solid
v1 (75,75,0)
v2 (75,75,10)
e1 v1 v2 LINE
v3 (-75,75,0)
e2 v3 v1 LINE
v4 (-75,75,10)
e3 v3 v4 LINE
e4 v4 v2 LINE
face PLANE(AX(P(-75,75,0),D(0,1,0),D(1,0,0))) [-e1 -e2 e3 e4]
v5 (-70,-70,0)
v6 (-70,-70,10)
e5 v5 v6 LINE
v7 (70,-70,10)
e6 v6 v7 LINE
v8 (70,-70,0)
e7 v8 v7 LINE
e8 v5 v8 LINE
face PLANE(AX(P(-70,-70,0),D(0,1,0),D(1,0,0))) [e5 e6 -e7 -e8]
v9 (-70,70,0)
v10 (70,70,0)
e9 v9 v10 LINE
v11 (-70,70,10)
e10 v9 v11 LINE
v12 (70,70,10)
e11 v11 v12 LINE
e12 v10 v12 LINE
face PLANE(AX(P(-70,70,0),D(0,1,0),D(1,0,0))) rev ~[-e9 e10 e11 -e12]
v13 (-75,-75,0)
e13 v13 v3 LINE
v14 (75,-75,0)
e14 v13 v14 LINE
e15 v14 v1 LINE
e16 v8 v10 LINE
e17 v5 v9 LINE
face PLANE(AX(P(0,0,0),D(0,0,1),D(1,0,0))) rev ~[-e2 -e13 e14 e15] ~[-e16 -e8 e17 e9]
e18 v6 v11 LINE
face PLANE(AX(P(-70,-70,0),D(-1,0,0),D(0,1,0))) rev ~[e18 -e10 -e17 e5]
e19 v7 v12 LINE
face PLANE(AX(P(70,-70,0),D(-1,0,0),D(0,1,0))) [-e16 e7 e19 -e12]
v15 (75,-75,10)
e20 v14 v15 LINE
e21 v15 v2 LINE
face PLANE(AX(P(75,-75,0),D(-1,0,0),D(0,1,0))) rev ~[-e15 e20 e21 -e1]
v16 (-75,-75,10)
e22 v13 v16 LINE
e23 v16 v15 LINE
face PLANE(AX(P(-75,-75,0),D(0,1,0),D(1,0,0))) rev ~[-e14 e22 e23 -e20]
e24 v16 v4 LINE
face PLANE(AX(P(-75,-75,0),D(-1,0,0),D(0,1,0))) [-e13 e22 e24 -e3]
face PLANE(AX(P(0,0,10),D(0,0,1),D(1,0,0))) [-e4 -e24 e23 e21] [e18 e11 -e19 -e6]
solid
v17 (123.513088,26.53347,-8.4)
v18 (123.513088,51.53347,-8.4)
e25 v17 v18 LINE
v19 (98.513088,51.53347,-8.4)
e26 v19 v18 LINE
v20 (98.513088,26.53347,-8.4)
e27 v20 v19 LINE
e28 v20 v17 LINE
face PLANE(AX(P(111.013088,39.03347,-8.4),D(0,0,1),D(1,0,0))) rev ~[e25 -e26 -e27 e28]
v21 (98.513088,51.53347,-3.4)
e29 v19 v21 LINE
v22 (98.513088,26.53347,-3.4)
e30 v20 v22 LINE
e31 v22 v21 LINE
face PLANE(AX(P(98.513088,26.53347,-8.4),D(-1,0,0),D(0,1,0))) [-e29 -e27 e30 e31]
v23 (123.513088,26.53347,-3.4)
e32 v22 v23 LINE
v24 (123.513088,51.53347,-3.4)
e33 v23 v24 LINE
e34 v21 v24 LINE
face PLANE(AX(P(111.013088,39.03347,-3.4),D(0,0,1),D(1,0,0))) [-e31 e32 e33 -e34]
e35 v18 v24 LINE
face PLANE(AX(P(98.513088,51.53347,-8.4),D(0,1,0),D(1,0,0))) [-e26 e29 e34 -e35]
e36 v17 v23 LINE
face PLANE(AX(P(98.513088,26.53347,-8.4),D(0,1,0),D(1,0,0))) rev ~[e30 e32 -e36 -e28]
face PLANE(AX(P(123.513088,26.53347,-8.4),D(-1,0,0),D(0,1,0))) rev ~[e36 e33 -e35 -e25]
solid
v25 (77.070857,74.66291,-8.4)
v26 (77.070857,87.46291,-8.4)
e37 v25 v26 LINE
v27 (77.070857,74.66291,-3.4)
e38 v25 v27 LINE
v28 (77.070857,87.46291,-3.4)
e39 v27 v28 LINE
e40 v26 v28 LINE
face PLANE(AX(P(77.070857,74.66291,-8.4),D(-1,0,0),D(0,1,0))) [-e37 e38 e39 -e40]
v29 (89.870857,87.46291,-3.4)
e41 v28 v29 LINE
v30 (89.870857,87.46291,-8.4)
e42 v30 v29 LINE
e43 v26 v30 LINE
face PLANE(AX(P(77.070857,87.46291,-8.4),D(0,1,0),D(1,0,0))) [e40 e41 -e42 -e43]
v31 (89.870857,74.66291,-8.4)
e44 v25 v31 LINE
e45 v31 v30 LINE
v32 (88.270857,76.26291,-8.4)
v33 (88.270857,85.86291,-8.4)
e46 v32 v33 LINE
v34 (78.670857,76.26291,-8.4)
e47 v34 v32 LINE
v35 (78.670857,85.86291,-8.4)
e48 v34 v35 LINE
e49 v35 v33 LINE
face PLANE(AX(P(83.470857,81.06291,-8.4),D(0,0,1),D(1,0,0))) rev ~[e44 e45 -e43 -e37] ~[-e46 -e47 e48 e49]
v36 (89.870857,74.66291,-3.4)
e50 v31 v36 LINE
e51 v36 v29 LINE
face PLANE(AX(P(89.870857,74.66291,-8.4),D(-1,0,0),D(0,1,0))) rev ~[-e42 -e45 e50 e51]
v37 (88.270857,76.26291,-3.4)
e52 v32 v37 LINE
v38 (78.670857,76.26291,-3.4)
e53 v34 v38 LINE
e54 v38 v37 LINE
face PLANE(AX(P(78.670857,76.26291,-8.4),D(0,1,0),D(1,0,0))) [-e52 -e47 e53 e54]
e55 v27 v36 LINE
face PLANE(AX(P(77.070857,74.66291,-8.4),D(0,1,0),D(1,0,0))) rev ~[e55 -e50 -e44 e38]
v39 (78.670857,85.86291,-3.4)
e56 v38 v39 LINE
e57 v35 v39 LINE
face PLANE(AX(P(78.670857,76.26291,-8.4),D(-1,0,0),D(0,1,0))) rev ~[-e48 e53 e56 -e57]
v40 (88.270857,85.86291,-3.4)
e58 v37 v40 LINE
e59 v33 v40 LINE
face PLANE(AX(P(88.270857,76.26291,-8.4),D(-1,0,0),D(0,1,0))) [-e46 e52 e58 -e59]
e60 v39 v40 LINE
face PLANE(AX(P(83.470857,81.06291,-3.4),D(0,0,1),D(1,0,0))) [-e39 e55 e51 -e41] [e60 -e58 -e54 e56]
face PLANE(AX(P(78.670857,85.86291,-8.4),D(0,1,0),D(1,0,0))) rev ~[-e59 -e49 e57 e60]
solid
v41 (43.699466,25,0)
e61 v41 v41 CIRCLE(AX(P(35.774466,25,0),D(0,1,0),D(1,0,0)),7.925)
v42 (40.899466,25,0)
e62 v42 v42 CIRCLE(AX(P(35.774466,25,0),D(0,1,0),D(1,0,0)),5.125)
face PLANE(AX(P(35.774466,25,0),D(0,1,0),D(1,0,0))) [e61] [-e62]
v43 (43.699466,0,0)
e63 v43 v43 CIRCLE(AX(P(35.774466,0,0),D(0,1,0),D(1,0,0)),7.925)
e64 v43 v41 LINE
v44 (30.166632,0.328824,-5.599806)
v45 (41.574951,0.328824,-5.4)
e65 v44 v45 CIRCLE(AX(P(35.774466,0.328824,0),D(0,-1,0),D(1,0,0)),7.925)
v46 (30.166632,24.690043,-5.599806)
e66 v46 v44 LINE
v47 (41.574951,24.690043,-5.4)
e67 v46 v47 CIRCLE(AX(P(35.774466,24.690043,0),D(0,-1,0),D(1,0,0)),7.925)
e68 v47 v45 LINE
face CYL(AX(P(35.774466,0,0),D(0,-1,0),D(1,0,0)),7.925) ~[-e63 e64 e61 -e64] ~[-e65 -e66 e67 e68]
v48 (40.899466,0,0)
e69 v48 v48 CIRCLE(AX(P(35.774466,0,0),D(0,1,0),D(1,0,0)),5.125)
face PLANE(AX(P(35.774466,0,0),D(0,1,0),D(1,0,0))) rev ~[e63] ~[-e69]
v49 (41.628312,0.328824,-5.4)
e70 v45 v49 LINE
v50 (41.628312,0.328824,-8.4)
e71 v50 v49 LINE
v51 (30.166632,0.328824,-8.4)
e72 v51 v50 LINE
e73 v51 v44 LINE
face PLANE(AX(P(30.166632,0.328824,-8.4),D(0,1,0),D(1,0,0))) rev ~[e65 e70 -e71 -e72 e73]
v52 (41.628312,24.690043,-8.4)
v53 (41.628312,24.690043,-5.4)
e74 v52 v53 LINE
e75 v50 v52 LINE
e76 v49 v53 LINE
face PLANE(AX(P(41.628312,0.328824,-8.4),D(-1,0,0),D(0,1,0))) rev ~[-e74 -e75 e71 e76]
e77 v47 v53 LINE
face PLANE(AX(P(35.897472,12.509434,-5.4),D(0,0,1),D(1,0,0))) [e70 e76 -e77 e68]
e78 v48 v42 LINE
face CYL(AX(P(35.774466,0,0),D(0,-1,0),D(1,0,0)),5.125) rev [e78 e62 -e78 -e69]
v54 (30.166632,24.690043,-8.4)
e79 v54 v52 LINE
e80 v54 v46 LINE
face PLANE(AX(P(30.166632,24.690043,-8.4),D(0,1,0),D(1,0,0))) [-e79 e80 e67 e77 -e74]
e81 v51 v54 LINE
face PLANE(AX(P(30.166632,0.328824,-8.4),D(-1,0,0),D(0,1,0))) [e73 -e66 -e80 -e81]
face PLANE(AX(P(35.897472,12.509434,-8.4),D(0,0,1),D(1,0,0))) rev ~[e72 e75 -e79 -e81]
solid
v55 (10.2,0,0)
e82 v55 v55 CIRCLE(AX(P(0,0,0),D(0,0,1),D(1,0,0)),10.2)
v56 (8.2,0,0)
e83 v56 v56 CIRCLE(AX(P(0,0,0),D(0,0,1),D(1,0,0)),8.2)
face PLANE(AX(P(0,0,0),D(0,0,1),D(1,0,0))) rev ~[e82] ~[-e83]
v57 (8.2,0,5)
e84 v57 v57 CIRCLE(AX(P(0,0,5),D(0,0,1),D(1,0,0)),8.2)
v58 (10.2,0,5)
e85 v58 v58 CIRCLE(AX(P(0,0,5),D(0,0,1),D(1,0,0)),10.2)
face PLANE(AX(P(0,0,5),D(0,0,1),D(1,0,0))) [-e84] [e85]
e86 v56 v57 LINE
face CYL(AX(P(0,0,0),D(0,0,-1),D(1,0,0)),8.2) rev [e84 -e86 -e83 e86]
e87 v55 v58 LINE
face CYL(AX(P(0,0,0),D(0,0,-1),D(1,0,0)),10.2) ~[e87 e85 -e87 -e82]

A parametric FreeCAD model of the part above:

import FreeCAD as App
import Part
import Sketcher
from FreeCAD import Vector
Q = App.Units.Quantity

doc = App.newDocument("Part")
body = doc.addObject("PartDesign::Body", "Body")

sketch1 = body.newObject("Sketcher::SketchObject", "Sketch")
sketch1.AttachmentSupport = (doc.getObject("XY_Plane"), [""])
sketch1.MapMode = "FlatFace"
sketch1.addGeometry([
    Part.LineSegment(Vector(-75, 75, 0), Vector(-75, -75, 0)),
    Part.LineSegment(Vector(-75, -75, 0), Vector(75, -75, 0)),
    Part.LineSegment(Vector(75, -75, 0), Vector(75, 75, 0)),
    Part.LineSegment(Vector(75, 75, 0), Vector(-75, 75, 0)),
    Part.LineSegment(Vector(70, -70, 0), Vector(-70, -70, 0)),
    Part.LineSegment(Vector(-70, -70, 0), Vector(-70, 70, 0)),
    Part.LineSegment(Vector(-70, 70, 0), Vector(70, 70, 0)),
    Part.LineSegment(Vector(70, 70, 0), Vector(70, -70, 0)),
], False)
sketch1.addConstraint([
    Sketcher.Constraint("Coincident", 0, 2, 1, 1),
    Sketcher.Constraint("Coincident", 1, 2, 2, 1),
    Sketcher.Constraint("Coincident", 2, 2, 3, 1),
    Sketcher.Constraint("Coincident", 3, 2, 0, 1),
    Sketcher.Constraint("Coincident", 4, 2, 5, 1),
    Sketcher.Constraint("Coincident", 5, 2, 6, 1),
    Sketcher.Constraint("Coincident", 6, 2, 7, 1),
    Sketcher.Constraint("Coincident", 7, 2, 4, 1),
    Sketcher.Constraint("Vertical", 0),
    Sketcher.Constraint("Horizontal", 1),
    Sketcher.Constraint("Vertical", 2),
    Sketcher.Constraint("Horizontal", 3),
    Sketcher.Constraint("Horizontal", 4),
    Sketcher.Constraint("Vertical", 5),
    Sketcher.Constraint("Horizontal", 6),
    Sketcher.Constraint("Vertical", 7),
    Sketcher.Constraint("Symmetric", 0, 2, 2, 2, -1, 1),
    Sketcher.Constraint("Symmetric", 4, 2, 6, 2, -1, 1),
    Sketcher.Constraint("Equal", 3, 0),
    Sketcher.Constraint("Equal", 6, 5),
    Sketcher.Constraint("DistanceX", 1, 1, 1, 2, Q("150 mm")),
    Sketcher.Constraint("DistanceX", 4, 2, 4, 1, Q("140 mm")),
])
pad1 = body.newObject("PartDesign::Pad", "Pad")
pad1.Profile = sketch1
pad1.Length = 10
body2 = doc.addObject("PartDesign::Body", "Body001")

sketch2 = body2.newObject("Sketcher::SketchObject", "Sketch001")
sketch2.AttachmentSupport = (doc.getObject("XY_Plane001"), [""])
sketch2.MapMode = "FlatFace"
sketch2.addGeometry([
    Part.Circle(Vector(0, 0, 0), Vector(0, 0, 1), 10),
    Part.Circle(Vector(0, 0, 0), Vector(0, 0, 1), 8),
], False)
sketch2.addConstraint([
    Sketcher.Constraint("Coincident", 0, 3, -1, 1),
    Sketcher.Constraint("Coincident", 1, 3, -1, 1),
    Sketcher.Constraint("Diameter", 0, Q("20.4 mm")),
    Sketcher.Constraint("Diameter", 1, Q("16.4 mm")),
])
pad2 = body2.newObject("PartDesign::Pad", "Pad001")
pad2.Profile = sketch2
pad2.Length = 5
body3 = doc.addObject("PartDesign::Body", "Body002")

sketch3 = body3.newObject("Sketcher::SketchObject", "Sketch002")
sketch3.AttachmentSupport = (doc.getObject("XY_Plane002"), [""])
sketch3.MapMode = "FlatFace"
sketch3.addGeometry([
    Part.Circle(Vector(36, 0, 0), Vector(0, 0, 1), 8),
    Part.Circle(Vector(36, 0, 0), Vector(0, 0, 1), 5),
], False)
sketch3.addConstraint([
    Sketcher.Constraint("Coincident", 1, 3, 0, 3),
    Sketcher.Constraint("PointOnObject", 0, 3, -1),
    Sketcher.Constraint("Diameter", 0, Q("15.85 mm")),
    Sketcher.Constraint("Diameter", 1, Q("10.25 mm")),
    Sketcher.Constraint("DistanceX", -1, 1, 0, 3, Q("35.774466 mm")),
])
pad3 = body3.newObject("PartDesign::Pad", "Pad002")
pad3.Profile = sketch3
pad3.Length = 25
body4 = doc.addObject("PartDesign::Body", "Body003")
doc.recompute()

body3.Placement = App.Placement(Vector(0, 0, 0), App.Rotation(Vector(-1, 0, 0), 90))
boolean = body4.newObject("PartDesign::Boolean", "Boolean")
boolean.Type = "Fuse"
boolean.addObjects([body3])

sketch4 = body4.newObject("Sketcher::SketchObject", "Sketch003")
sketch4.AttachmentSupport = (doc.getObject("XY_Plane003"), [""])
sketch4.MapMode = "FlatFace"
sketch4.AttachmentOffset = App.Placement(Vector(0, 0, -8.4), App.Rotation())
sketch4.addGeometry([
    Part.LineSegment(Vector(30, 25, 0), Vector(30, 0, 0)),
    Part.LineSegment(Vector(30, 0, 0), Vector(42, 0, 0)),
    Part.LineSegment(Vector(42, 0, 0), Vector(42, 25, 0)),
    Part.LineSegment(Vector(42, 25, 0), Vector(30, 25, 0)),
], False)
sketch4.addConstraint([
    Sketcher.Constraint("Coincident", 0, 2, 1, 1),
    Sketcher.Constraint("Coincident", 1, 2, 2, 1),
    Sketcher.Constraint("Coincident", 2, 2, 3, 1),
    Sketcher.Constraint("Coincident", 3, 2, 0, 1),
    Sketcher.Constraint("Vertical", 0),
    Sketcher.Constraint("Horizontal", 1),
    Sketcher.Constraint("Vertical", 2),
    Sketcher.Constraint("Horizontal", 3),
    Sketcher.Constraint("DistanceX", 1, 1, 1, 2, Q("11.461681 mm")),
    Sketcher.Constraint("DistanceY", 0, 2, 0, 1, Q("24.361219 mm")),
    Sketcher.Constraint("DistanceX", -1, 1, 0, 2, Q("30.166632 mm")),
    Sketcher.Constraint("DistanceY", -1, 1, 0, 2, Q("0.328824 mm")),
])
pad4 = body4.newObject("PartDesign::Pad", "Pad003")
pad4.Profile = sketch4
pad4.Length = 3
body5 = doc.addObject("PartDesign::Body", "Body004")

sketch5 = body5.newObject("Sketcher::SketchObject", "Sketch004")
sketch5.AttachmentSupport = (doc.getObject("XY_Plane004"), [""])
sketch5.MapMode = "FlatFace"
sketch5.AttachmentOffset = App.Placement(Vector(0, 0, -8.4), App.Rotation())
sketch5.addGeometry([
    Part.LineSegment(Vector(77, 87, 0), Vector(77, 75, 0)),
    Part.LineSegment(Vector(77, 75, 0), Vector(90, 75, 0)),
    Part.LineSegment(Vector(90, 75, 0), Vector(90, 87, 0)),
    Part.LineSegment(Vector(90, 87, 0), Vector(77, 87, 0)),
    Part.LineSegment(Vector(88, 76, 0), Vector(79, 76, 0)),
    Part.LineSegment(Vector(79, 76, 0), Vector(79, 86, 0)),
    Part.LineSegment(Vector(79, 86, 0), Vector(88, 86, 0)),
    Part.LineSegment(Vector(88, 86, 0), Vector(88, 76, 0)),
], False)
sketch5.addConstraint([
    Sketcher.Constraint("Coincident", 0, 2, 1, 1),
    Sketcher.Constraint("Coincident", 1, 2, 2, 1),
    Sketcher.Constraint("Coincident", 2, 2, 3, 1),
    Sketcher.Constraint("Coincident", 3, 2, 0, 1),
    Sketcher.Constraint("Coincident", 4, 2, 5, 1),
    Sketcher.Constraint("Coincident", 5, 2, 6, 1),
    Sketcher.Constraint("Coincident", 6, 2, 7, 1),
    Sketcher.Constraint("Coincident", 7, 2, 4, 1),
    Sketcher.Constraint("Vertical", 0),
    Sketcher.Constraint("Horizontal", 1),
    Sketcher.Constraint("Vertical", 2),
    Sketcher.Constraint("Horizontal", 3),
    Sketcher.Constraint("Horizontal", 4),
    Sketcher.Constraint("Vertical", 5),
    Sketcher.Constraint("Horizontal", 6),
    Sketcher.Constraint("Vertical", 7),
    Sketcher.Constraint("Equal", 3, 0),
    Sketcher.Constraint("Equal", 6, 5),
    Sketcher.Constraint("DistanceX", 1, 1, 1, 2, Q("12.8 mm")),
    Sketcher.Constraint("DistanceX", 4, 2, 4, 1, Q("9.6 mm")),
    Sketcher.Constraint("DistanceX", 0, 2, 4, 2, Q("1.6 mm")),
    Sketcher.Constraint("DistanceY", 0, 2, 4, 2, Q("1.6 mm")),
    Sketcher.Constraint("DistanceY", -1, 1, 0, 2, Q("74.66291 mm")),
    Sketcher.Constraint("DistanceX", -1, 1, 0, 2, Q("77.070857 mm")),
])
pad5 = body5.newObject("PartDesign::Pad", "Pad004")
pad5.Profile = sketch5
pad5.Length = 5
body6 = doc.addObject("PartDesign::Body", "Body005")

sketch6 = body6.newObject("Sketcher::SketchObject", "Sketch005")
sketch6.AttachmentSupport = (doc.getObject("XY_Plane005"), [""])
sketch6.MapMode = "FlatFace"
sketch6.AttachmentOffset = App.Placement(Vector(0, 0, -8.4), App.Rotation())
sketch6.addGeometry([
    Part.LineSegment(Vector(99, 52, 0), Vector(99, 27, 0)),
    Part.LineSegment(Vector(99, 27, 0), Vector(124, 27, 0)),
    Part.LineSegment(Vector(124, 27, 0), Vector(124, 52, 0)),
    Part.LineSegment(Vector(124, 52, 0), Vector(99, 52, 0)),
], False)
sketch6.addConstraint([
    Sketcher.Constraint("Coincident", 0, 2, 1, 1),
    Sketcher.Constraint("Coincident", 1, 2, 2, 1),
    Sketcher.Constraint("Coincident", 2, 2, 3, 1),
    Sketcher.Constraint("Coincident", 3, 2, 0, 1),
    Sketcher.Constraint("Vertical", 0),
    Sketcher.Constraint("Horizontal", 1),
    Sketcher.Constraint("Vertical", 2),
    Sketcher.Constraint("Horizontal", 3),
    Sketcher.Constraint("Equal", 3, 0),
    Sketcher.Constraint("DistanceX", 1, 1, 1, 2, Q("25 mm")),
    Sketcher.Constraint("DistanceY", -1, 1, 0, 2, Q("26.53347 mm")),
    Sketcher.Constraint("DistanceX", -1, 1, 0, 2, Q("98.513088 mm")),
])
pad6 = body6.newObject("PartDesign::Pad", "Pad005")
pad6.Profile = sketch6
pad6.Length = 5

doc.recompute()
